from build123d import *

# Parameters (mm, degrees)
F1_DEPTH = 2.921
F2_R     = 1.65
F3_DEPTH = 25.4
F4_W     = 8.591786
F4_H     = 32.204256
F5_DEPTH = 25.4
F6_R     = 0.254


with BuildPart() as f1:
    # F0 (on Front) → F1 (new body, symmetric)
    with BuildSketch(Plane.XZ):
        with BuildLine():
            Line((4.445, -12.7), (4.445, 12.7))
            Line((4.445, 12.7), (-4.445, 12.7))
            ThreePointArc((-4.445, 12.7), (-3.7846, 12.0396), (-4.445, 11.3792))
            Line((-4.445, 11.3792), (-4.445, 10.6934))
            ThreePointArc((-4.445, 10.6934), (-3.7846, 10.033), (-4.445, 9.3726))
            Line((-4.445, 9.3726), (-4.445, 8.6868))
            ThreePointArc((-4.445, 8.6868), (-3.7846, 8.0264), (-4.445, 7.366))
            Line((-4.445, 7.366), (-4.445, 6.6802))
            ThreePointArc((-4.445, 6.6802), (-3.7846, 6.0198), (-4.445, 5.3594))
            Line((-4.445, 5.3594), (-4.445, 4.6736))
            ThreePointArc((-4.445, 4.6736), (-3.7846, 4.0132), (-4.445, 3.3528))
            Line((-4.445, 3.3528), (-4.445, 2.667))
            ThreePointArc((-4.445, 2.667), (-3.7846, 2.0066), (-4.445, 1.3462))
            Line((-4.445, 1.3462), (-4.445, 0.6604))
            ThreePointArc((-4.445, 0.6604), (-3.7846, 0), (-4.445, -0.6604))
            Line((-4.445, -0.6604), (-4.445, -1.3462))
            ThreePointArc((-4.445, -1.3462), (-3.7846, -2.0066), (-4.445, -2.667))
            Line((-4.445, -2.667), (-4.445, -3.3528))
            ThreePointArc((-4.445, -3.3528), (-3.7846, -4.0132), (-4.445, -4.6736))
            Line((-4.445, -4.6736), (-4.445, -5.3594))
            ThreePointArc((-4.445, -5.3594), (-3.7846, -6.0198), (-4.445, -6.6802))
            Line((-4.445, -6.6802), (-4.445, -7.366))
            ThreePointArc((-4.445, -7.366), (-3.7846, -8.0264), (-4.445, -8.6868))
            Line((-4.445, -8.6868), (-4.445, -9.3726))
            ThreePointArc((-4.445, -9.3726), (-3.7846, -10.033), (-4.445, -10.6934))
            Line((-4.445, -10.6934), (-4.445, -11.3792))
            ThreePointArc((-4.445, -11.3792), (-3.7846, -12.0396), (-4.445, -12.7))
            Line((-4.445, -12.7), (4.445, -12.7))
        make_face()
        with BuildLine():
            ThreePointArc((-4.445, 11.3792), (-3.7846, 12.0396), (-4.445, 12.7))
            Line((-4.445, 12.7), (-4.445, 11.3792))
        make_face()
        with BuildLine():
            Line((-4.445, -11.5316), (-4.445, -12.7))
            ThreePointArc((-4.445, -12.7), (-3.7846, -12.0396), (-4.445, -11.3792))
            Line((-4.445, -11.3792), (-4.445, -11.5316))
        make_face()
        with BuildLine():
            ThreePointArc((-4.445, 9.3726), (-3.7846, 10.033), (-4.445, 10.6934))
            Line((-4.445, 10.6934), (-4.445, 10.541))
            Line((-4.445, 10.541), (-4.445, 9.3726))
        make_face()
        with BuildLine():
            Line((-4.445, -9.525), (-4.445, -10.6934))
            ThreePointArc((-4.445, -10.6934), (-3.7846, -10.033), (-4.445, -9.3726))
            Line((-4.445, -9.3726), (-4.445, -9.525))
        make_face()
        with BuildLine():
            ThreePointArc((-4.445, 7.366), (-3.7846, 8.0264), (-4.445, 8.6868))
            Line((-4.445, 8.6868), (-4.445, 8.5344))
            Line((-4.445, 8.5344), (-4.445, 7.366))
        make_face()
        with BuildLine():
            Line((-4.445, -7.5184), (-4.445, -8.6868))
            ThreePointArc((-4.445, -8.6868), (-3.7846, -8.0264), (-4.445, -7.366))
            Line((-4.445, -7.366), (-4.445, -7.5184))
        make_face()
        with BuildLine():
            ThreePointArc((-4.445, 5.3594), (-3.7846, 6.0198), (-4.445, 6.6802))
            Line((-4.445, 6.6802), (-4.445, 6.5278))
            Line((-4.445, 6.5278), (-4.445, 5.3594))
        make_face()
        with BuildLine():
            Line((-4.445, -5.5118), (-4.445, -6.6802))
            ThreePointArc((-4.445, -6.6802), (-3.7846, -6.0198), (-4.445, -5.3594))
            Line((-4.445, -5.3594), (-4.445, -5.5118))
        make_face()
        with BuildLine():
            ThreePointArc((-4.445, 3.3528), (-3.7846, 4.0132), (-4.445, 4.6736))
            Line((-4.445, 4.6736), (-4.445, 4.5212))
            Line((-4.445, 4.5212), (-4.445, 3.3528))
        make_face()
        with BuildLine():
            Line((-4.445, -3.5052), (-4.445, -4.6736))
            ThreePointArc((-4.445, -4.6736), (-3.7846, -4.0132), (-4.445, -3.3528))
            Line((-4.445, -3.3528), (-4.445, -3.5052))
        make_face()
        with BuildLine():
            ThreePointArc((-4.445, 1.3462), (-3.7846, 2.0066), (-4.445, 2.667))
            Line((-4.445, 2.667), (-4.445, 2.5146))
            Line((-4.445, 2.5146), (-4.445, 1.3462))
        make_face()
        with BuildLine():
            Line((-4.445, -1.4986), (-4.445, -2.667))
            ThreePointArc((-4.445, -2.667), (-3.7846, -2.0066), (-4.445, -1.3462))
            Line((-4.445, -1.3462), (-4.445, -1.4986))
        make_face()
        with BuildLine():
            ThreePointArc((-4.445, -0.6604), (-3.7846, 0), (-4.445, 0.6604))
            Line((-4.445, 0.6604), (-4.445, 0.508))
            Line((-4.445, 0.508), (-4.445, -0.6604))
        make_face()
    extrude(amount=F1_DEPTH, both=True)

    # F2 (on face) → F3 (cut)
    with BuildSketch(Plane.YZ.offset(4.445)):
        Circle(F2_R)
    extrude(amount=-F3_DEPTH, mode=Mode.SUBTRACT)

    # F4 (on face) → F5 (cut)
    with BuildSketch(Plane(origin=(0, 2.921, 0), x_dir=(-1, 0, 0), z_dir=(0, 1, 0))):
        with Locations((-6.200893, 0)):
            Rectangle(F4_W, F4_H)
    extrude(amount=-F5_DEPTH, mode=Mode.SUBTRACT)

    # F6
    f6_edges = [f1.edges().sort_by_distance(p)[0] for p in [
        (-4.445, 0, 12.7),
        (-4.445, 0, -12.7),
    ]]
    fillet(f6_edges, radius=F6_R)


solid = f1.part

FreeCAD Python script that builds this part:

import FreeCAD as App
import Part
import Sketcher
Q = App.Units.Quantity


def edges_at(feature, points):
    """Names of the edges that pass closest to the given points."""
    edges = feature.Shape.Edges
    near = lambda p: min(range(len(edges)), key=lambda i: edges[i].distToShape(Part.Vertex(*p))[0])
    return sorted({f"Edge{near(p) + 1}" for p in points})

doc = App.newDocument("Part")
params = doc.addObject("Spreadsheet::Sheet", "Params")
for row, (alias, value) in enumerate([
    ("sketch1_height", "1 in"),
    ("sketch1_width", "0.35 in"),
    ("pad1_length", "0.23 in"),
    ("pocket1_length", "1 in"),
    ("pocket2_length", "1 in"),
    ("fillet_radius", "0.01 in"),
], start=1):
    params.set(f"A{row}", alias)
    params.set(f"B{row}", "=" + value)
    params.setAlias(f"B{row}", alias)

body = doc.addObject("PartDesign::Body", "Body")

sketch1 = body.newObject("Sketcher::SketchObject", "Sketch")
sketch1.AttachmentSupport = (doc.getObject("XZ_Plane"), [""])
sketch1.MapMode = "FlatFace"
sketch1.addGeometry(Part.LineSegment(App.Vector(4, -13, 0), App.Vector(4, 13, 0)), False)
sketch1.addGeometry(Part.LineSegment(App.Vector(4, 13, 0), App.Vector(-4, 13, 0)), False)
sketch1.addGeometry(Part.LineSegment(App.Vector(-4, 13, 0), App.Vector(-4, -13, 0)), False)
sketch1.addGeometry(Part.LineSegment(App.Vector(-4, -13, 0), App.Vector(4, -13, 0)), False)
sketch1.addConstraint(Sketcher.Constraint("Coincident", 0, 2, 1, 1))
sketch1.addConstraint(Sketcher.Constraint("Coincident", 1, 2, 2, 1))
sketch1.addConstraint(Sketcher.Constraint("Coincident", 2, 2, 3, 1))
sketch1.addConstraint(Sketcher.Constraint("Coincident", 3, 2, 0, 1))
sketch1.addConstraint(Sketcher.Constraint("Vertical", 0))
sketch1.addConstraint(Sketcher.Constraint("Horizontal", 1))
sketch1.addConstraint(Sketcher.Constraint("Vertical", 2))
sketch1.addConstraint(Sketcher.Constraint("Horizontal", 3))
sketch1.addConstraint(Sketcher.Constraint("Symmetric", 0, 2, 2, 2, -1, 1))
sketch1.addConstraint(Sketcher.Constraint("DistanceY", 0, 1, 0, 2, Q("1 in")))
sketch1.addConstraint(Sketcher.Constraint("DistanceX", 1, 2, 1, 1, Q("0.35 in")))
sketch1.setExpression("Constraints[9]", "Params.sketch1_height")
sketch1.setExpression("Constraints[10]", "Params.sketch1_width")
pad1 = body.newObject("PartDesign::Pad", "Pad")
pad1.Profile = sketch1
pad1.setExpression("Length", "Params.pad1_length")
pad1.Midplane = True

sketch2 = body.newObject("Sketcher::SketchObject", "Sketch001")
sketch2.AttachmentSupport = (doc.getObject("YZ_Plane"), [""])
sketch2.MapMode = "FlatFace"
sketch2.AttachmentOffset = App.Placement(App.Vector(0, 0, 0.175 * 25.4), App.Rotation())
sketch2.addGeometry(Part.Circle(App.Vector(0, 0, 0), App.Vector(0, 0, 1), 1.6), False)
sketch2.addConstraint(Sketcher.Constraint("Coincident", 0, 3, -1, 1))
sketch2.addConstraint(Sketcher.Constraint("Diameter", 0, Q("3.3 mm")))
pocket1 = body.newObject("PartDesign::Pocket", "Pocket")
pocket1.Profile = sketch2
pocket1.setExpression("Length", "Params.pocket1_length")

sketch3 = body.newObject("Sketcher::SketchObject", "Sketch002")
sketch3.AttachmentSupport = (doc.getObject("XZ_Plane"), [""])
sketch3.MapMode = "FlatFace"
sketch3.AttachmentOffset = App.Placement(App.Vector(0, 0, -0.115 * 25.4), App.Rotation())
sketch3.addGeometry(Part.LineSegment(App.Vector(10, 16, 0), App.Vector(10, -16, 0)), False)
sketch3.addGeometry(Part.LineSegment(App.Vector(10, -16, 0), App.Vector(2, -16, 0)), False)
sketch3.addGeometry(Part.LineSegment(App.Vector(2, -16, 0), App.Vector(2, 16, 0)), False)
sketch3.addGeometry(Part.LineSegment(App.Vector(2, 16, 0), App.Vector(10, 16, 0)), False)
sketch3.addConstraint(Sketcher.Constraint("Coincident", 0, 2, 1, 1))
sketch3.addConstraint(Sketcher.Constraint("Coincident", 1, 2, 2, 1))
sketch3.addConstraint(Sketcher.Constraint("Coincident", 2, 2, 3, 1))
sketch3.addConstraint(Sketcher.Constraint("Coincident", 3, 2, 0, 1))
sketch3.addConstraint(Sketcher.Constraint("Vertical", 0))
sketch3.addConstraint(Sketcher.Constraint("Horizontal", 1))
sketch3.addConstraint(Sketcher.Constraint("Vertical", 2))
sketch3.addConstraint(Sketcher.Constraint("Horizontal", 3))
sketch3.addConstraint(Sketcher.Constraint("DistanceX", -1, 1, 1, 2, Q("0.075 in")))
sketch3.addConstraint(Sketcher.Constraint("DistanceX", 1, 2, 1, 1, Q("8.591786 mm")))
sketch3.addConstraint(Sketcher.Constraint("DistanceY", 0, 2, 0, 1, Q("32.204256 mm")))
sketch3.addConstraint(Sketcher.Constraint("DistanceY", 0, 2, -1, 1, Q("16.102128 mm")))
pocket2 = body.newObject("PartDesign::Pocket", "Pocket001")
pocket2.Profile = sketch3
pocket2.setExpression("Length", "Params.pocket2_length")
pocket2.Reversed = True
doc.recompute()

fillet = body.newObject("PartDesign::Fillet", "Fillet")
fillet.Base = (pocket2, edges_at(pocket2, [(-4.445, 0, 12.7), (-4.445, 0, -12.7)]))
fillet.setExpression("Radius", "Params.fillet_radius")

doc.recompute()
